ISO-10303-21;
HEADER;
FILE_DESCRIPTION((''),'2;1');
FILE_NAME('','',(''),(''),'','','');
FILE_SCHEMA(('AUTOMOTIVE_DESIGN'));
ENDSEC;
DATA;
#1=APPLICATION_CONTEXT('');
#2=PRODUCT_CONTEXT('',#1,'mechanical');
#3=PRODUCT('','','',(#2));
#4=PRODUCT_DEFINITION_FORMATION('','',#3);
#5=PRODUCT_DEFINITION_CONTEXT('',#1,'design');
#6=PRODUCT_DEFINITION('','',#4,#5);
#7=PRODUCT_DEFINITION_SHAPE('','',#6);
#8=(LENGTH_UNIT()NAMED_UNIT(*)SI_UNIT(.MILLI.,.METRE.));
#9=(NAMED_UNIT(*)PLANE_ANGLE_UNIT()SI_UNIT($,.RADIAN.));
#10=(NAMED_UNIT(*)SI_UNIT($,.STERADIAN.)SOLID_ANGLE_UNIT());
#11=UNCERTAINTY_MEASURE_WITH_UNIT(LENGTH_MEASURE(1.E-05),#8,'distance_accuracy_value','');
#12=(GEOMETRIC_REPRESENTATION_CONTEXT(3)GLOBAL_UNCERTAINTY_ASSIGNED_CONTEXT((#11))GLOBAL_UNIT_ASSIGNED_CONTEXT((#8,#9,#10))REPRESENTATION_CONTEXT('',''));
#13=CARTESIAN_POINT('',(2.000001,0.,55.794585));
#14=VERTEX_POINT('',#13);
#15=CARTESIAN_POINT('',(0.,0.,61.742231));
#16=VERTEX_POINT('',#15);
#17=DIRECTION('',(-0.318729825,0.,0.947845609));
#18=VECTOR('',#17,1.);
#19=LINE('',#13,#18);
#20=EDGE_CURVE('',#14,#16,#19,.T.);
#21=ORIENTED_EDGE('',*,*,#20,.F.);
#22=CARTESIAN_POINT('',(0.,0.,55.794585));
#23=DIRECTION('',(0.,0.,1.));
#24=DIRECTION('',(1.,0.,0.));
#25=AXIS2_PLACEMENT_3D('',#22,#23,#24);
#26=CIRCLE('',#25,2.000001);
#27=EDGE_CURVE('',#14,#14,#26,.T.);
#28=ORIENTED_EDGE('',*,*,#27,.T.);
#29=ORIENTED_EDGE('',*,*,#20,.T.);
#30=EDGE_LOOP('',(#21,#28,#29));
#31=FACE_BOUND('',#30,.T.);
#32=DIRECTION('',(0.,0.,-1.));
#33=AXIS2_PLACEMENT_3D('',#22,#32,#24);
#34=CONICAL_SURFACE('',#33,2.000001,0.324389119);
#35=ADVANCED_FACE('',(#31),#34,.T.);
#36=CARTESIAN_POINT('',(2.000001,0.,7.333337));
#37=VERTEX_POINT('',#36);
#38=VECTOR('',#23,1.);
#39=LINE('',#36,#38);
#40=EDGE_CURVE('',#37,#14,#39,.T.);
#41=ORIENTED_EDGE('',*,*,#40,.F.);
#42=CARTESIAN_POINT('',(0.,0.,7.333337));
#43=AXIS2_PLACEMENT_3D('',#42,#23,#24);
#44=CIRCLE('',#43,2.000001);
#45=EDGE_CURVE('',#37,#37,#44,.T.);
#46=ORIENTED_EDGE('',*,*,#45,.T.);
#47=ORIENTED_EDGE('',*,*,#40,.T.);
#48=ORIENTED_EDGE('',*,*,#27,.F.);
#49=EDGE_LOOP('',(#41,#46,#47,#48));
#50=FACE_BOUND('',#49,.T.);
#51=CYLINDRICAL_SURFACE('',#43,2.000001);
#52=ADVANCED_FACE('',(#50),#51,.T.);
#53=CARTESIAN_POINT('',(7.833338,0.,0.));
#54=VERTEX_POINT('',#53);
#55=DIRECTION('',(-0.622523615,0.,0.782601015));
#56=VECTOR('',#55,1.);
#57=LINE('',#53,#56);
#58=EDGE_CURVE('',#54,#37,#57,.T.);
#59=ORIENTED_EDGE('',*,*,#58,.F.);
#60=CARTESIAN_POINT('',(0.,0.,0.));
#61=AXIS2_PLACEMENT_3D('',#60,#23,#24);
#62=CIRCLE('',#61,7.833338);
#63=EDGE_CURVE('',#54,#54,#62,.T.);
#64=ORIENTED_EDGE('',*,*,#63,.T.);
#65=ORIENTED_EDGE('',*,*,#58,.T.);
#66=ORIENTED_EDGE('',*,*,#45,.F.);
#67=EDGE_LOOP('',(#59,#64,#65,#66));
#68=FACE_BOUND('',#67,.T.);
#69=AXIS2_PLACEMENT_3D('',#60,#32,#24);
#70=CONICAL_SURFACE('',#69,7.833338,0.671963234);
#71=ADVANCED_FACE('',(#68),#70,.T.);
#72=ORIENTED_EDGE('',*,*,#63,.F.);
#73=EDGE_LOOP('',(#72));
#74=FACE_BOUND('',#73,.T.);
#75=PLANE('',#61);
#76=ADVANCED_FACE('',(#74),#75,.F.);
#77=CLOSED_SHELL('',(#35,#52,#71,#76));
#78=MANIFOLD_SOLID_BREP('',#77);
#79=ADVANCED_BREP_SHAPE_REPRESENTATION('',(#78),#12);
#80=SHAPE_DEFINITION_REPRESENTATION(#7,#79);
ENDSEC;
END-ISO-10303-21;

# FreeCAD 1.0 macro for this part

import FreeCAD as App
import Part
import Sketcher


def add_polygon(sketch, points):
    """Adds a closed chain of lines whose ends are joined by coincident constraints."""
    first, n = sketch.GeometryCount, len(points)
    for a, b in zip(points, points[1:] + points[:1]):
        sketch.addGeometry(Part.LineSegment(App.Vector(*a, 0), App.Vector(*b, 0)), False)
    for i in range(n):
        sketch.addConstraint(Sketcher.Constraint("Coincident", first + i, 2, first + (i + 1) % n, 1))

doc = App.newDocument("Part")
body = doc.addObject("PartDesign::Body", "Body")

# Sketch on XZ plane
sketch1 = doc.addObject("Sketcher::SketchObject", "Sketch")
body.addObject(sketch1)
sketch1.AttachmentSupport = (doc.XZ_Plane, [""])
sketch1.MapMode = "FlatFace"
add_polygon(sketch1, [(0, 0), (7.833338, 0), (2.000001, 7.333337), (2.000001, 55.794585), (0, 61.742231)])  # lines 0-4
sketch1.addConstraint([
    Sketcher.Constraint("Horizontal", 0),
    Sketcher.Constraint("Vertical", 2),
    Sketcher.Constraint("Vertical", 4),
    Sketcher.Constraint("Coincident", 4, 2, -1, 1),
    Sketcher.Constraint("DistanceX", -1, 1, 1, 2, 2.000001),
    Sketcher.Constraint("DistanceX", 0, 1, 0, 2, 7.833338),
    Sketcher.Constraint("DistanceY", 4, 2, 4, 1, 61.742231),
    Sketcher.Constraint("Distance", 3, 6.27491),
    Sketcher.Constraint("DistanceY", 2, 1, 2, 2, 48.461248),
])
revolution = doc.addObject("PartDesign::Revolution", "Revolution")
body.addObject(revolution)
revolution.Profile = sketch1
revolution.ReferenceAxis = (sketch1, ["V_Axis"])
revolution.Angle = 360

doc.recompute()
